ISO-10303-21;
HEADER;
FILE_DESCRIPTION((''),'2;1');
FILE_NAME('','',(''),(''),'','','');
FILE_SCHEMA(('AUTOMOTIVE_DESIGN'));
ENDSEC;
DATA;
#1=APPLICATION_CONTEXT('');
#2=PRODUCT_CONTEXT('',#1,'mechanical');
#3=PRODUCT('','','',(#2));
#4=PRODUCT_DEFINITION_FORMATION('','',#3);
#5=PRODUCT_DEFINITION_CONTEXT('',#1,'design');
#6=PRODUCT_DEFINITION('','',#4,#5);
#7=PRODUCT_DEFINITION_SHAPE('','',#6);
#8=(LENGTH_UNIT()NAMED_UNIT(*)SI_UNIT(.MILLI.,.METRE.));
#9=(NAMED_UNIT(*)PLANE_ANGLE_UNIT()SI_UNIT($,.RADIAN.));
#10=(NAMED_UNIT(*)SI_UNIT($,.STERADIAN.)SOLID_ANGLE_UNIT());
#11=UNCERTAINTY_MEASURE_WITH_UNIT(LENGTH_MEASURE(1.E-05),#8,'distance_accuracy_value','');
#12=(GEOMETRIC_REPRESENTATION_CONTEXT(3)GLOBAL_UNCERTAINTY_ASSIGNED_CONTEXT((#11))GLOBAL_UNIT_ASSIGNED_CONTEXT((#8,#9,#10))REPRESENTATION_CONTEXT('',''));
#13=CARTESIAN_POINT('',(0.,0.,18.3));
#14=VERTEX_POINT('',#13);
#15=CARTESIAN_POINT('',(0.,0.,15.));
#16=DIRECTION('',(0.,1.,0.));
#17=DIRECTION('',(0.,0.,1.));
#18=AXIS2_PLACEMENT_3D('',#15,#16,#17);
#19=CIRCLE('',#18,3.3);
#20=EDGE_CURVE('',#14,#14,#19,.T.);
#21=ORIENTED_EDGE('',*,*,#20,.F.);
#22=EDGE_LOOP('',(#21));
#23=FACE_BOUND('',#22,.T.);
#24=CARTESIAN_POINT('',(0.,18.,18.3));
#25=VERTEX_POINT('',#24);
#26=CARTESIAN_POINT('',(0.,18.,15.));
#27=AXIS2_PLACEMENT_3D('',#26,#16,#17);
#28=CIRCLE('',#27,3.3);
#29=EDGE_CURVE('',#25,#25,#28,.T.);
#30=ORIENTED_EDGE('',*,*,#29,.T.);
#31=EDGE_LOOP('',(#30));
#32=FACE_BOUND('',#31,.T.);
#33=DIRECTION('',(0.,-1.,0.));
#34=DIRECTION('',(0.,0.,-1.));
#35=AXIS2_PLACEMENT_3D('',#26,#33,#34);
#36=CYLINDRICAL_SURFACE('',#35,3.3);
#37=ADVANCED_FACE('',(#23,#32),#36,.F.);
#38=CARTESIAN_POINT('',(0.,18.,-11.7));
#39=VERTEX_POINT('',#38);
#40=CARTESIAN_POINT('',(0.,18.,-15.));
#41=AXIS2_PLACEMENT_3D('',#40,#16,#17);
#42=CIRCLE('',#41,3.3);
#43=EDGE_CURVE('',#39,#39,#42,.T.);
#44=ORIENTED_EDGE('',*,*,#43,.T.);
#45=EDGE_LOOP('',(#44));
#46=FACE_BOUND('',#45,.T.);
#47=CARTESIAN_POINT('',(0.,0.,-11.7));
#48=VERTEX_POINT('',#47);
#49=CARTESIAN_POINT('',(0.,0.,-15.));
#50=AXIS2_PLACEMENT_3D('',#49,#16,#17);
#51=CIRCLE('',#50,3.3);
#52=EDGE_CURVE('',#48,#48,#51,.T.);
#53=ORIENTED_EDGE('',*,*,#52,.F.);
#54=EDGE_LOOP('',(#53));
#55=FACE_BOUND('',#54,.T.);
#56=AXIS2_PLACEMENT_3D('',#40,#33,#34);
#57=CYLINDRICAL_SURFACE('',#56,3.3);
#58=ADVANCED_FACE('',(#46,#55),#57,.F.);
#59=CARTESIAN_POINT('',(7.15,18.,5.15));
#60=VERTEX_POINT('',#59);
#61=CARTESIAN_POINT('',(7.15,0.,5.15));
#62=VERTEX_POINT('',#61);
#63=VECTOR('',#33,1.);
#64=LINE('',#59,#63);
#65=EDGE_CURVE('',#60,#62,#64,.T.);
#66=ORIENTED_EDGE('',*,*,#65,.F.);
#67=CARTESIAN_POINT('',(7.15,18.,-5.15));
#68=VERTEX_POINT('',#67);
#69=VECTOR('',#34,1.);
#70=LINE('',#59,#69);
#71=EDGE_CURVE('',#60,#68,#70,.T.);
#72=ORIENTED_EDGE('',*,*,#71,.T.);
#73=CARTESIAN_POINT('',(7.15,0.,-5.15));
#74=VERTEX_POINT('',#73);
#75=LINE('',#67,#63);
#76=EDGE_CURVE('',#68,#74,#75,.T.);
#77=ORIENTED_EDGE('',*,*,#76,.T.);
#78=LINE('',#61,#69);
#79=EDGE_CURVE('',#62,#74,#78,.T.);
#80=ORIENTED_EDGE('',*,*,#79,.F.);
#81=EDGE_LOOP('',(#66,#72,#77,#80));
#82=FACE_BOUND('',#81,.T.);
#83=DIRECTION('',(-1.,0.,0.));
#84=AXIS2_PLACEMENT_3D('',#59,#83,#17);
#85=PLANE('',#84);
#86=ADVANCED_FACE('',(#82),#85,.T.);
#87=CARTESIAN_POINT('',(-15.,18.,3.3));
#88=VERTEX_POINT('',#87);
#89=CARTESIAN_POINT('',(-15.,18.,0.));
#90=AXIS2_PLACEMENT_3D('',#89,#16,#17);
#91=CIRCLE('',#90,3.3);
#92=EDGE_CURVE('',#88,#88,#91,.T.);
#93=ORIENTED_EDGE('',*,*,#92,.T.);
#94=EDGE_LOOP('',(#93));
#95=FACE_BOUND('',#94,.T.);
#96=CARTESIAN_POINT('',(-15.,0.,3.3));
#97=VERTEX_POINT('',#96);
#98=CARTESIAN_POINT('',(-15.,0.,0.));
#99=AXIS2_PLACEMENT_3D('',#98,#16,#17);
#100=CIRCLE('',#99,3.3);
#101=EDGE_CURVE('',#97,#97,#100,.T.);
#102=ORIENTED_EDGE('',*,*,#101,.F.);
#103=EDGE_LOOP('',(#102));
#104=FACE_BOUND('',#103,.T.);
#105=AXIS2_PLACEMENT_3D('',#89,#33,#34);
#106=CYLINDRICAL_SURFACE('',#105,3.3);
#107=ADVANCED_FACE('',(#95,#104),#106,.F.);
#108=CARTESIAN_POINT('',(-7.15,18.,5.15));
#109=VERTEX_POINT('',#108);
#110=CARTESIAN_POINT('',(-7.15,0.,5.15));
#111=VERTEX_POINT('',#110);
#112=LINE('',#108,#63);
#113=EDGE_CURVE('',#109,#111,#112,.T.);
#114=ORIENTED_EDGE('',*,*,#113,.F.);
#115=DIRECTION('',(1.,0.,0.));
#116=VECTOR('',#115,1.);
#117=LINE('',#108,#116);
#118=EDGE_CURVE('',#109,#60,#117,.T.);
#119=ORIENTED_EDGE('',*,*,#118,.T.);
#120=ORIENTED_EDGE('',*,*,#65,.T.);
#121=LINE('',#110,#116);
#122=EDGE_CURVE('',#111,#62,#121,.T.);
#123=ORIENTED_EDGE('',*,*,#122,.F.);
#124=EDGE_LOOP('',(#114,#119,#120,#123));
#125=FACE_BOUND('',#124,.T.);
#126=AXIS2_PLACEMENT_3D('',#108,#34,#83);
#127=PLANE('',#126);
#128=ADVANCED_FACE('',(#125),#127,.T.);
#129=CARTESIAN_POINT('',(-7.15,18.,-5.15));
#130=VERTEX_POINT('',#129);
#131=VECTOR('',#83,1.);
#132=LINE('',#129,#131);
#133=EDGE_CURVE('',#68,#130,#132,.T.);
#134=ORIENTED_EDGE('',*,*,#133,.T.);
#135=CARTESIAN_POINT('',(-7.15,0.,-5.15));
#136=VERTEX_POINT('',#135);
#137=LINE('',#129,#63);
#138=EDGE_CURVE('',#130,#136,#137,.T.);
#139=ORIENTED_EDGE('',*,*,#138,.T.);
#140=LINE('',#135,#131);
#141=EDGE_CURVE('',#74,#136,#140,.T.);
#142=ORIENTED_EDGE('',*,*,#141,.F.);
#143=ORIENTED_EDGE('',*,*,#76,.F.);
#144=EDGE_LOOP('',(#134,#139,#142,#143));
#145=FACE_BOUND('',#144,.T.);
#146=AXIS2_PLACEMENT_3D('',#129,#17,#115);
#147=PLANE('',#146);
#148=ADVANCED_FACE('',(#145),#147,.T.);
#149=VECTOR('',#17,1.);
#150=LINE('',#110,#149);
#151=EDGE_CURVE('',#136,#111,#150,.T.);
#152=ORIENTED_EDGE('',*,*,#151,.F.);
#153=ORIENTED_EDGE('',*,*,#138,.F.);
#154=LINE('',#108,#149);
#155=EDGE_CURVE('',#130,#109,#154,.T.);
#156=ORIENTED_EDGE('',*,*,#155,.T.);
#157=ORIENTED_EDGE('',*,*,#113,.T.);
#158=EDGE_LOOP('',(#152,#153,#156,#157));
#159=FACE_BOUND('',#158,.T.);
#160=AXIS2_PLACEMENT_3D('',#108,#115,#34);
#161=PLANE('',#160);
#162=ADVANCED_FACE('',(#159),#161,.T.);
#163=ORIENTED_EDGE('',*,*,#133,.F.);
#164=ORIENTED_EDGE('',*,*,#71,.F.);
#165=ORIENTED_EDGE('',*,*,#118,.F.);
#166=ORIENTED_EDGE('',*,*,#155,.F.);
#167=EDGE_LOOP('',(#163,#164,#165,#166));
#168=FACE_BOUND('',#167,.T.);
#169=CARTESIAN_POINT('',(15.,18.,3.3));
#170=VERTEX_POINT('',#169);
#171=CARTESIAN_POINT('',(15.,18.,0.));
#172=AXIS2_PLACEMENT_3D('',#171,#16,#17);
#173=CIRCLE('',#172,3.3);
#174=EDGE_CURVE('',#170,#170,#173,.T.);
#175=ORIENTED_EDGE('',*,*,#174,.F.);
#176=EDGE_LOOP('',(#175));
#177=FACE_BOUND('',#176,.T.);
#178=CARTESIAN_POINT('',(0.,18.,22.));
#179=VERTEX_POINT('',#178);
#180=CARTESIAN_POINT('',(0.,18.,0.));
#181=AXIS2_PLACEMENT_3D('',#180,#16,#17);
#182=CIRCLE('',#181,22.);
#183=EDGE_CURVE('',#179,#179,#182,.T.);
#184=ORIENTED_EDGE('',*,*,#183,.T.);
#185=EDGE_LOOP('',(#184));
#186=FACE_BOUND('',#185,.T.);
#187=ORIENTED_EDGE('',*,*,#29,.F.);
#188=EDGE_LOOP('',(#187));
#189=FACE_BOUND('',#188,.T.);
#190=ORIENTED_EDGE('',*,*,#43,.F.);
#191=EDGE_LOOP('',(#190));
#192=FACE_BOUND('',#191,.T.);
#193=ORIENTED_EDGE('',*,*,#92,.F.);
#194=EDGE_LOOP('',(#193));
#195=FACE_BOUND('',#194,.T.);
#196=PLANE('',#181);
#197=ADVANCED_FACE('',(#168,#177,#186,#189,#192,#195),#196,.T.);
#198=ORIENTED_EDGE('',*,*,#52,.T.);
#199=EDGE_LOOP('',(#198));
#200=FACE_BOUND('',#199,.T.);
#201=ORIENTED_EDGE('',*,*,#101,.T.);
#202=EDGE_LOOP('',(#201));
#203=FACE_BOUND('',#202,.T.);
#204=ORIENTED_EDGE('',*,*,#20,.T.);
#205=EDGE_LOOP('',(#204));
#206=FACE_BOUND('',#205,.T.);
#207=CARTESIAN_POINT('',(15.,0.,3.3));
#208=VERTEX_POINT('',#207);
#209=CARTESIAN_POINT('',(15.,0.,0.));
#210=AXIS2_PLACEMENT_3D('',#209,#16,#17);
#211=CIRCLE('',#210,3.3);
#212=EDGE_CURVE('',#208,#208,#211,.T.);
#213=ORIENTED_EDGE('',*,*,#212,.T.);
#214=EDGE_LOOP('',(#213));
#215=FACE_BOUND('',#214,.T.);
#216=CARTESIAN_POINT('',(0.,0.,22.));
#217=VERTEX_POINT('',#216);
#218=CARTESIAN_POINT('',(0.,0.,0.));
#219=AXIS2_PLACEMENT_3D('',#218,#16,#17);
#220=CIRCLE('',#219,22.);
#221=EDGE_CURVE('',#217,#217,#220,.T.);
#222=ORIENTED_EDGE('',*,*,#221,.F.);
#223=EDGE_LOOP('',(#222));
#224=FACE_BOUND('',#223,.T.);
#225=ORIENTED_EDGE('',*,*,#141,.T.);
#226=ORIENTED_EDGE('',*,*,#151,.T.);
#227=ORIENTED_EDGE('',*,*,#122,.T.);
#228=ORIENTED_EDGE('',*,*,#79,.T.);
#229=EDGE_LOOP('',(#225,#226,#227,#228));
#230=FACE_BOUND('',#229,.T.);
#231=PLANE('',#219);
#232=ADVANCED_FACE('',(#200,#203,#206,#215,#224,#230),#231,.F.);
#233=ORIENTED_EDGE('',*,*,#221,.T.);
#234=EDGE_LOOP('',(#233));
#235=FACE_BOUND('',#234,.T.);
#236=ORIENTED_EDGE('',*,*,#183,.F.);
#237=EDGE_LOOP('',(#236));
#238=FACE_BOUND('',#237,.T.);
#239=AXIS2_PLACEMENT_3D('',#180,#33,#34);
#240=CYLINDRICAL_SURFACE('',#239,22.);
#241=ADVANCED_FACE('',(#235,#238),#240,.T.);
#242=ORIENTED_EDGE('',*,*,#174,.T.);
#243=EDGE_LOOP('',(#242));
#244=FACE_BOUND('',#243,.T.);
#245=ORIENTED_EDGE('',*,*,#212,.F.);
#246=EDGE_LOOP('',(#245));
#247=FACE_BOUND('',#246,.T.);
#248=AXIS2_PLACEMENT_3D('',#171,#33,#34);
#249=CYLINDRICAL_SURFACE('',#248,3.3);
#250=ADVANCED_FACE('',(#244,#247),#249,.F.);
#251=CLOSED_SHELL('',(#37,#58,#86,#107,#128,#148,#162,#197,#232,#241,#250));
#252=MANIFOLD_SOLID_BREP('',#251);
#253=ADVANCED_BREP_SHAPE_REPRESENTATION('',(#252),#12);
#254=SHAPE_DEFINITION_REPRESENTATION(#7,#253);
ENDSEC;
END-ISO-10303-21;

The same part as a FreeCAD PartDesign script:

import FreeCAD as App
import Part
import Sketcher

V = App.Vector
Q = App.Units.Quantity


def add_polygon(sketch, points):
    """Adds a closed chain of lines whose ends are joined by coincident constraints."""
    first, n = sketch.GeometryCount, len(points)
    for a, b in zip(points, points[1:] + points[:1]):
        sketch.addGeometry(Part.LineSegment(App.Vector(*a, 0), App.Vector(*b, 0)), False)
    for i in range(n):
        sketch.addConstraint(Sketcher.Constraint("Coincident", first + i, 2, first + (i + 1) % n, 1))

doc = App.newDocument("Part")
body = doc.addObject("PartDesign::Body", "Body")

# Sketch on XZ plane
sketch1 = doc.addObject("Sketcher::SketchObject", "Sketch")
body.addObject(sketch1)
sketch1.AttachmentSupport = (doc.XZ_Plane, [""])
sketch1.MapMode = "FlatFace"
sketch1.addGeometry(Part.Circle(V(0, 0, 0), V(0, 0, 1), 22), False)  # 0
sketch1.addGeometry(Part.Circle(V(0, -15, 0), V(0, 0, 1), 3.3), False)  # 1
add_polygon(sketch1, [(7.2, 5.2), (-7.2, 5.2), (-7.2, -5.2), (7.2, -5.2)])  # lines 2-5
sketch1.addGeometry(Part.Circle(V(-15, 0, 0), V(0, 0, 1), 3.3), False)  # 6
sketch1.addGeometry(Part.Circle(V(15, 0, 0), V(0, 0, 1), 3.3), False)  # 7
sketch1.addGeometry(Part.Circle(V(0, 15, 0), V(0, 0, 1), 3.3), False)  # 8
sketch1.addConstraint(Sketcher.Constraint("Horizontal", 2))
sketch1.addConstraint(Sketcher.Constraint("Vertical", 3))
sketch1.addConstraint(Sketcher.Constraint("Horizontal", 4))
sketch1.addConstraint(Sketcher.Constraint("Vertical", 5))
sketch1.addConstraint(Sketcher.Constraint("Coincident", 0, 3, -1, 1))
sketch1.addConstraint(Sketcher.Constraint("Equal", 1, 6))
sketch1.addConstraint(Sketcher.Constraint("Equal", 6, 7))
sketch1.addConstraint(Sketcher.Constraint("Equal", 7, 8))
sketch1.addConstraint(Sketcher.Constraint("Symmetric", 6, 3, 7, 3, -1, 1))
sketch1.addConstraint(Sketcher.Constraint("Symmetric", 1, 3, 8, 3, -1, 1))
sketch1.addConstraint(Sketcher.Constraint("Symmetric", 2, 2, 4, 2, -1, 1))
sketch1.addConstraint(Sketcher.Constraint("PointOnObject", 1, 3, -2))
sketch1.addConstraint(Sketcher.Constraint("PointOnObject", 6, 3, -1))
sketch1.addConstraint(Sketcher.Constraint("Diameter", 0, Q("44 mm")))
sketch1.addConstraint(Sketcher.Constraint("Diameter", 1, Q("6.6 mm")))
sketch1.addConstraint(Sketcher.Constraint("DistanceX", 2, 2, 2, 1, Q("14.3 mm")))
sketch1.addConstraint(Sketcher.Constraint("DistanceY", 3, 2, 3, 1, Q("10.3 mm")))
sketch1.addConstraint(Sketcher.Constraint("DistanceY", 1, 3, -1, 1, Q("15 mm")))
sketch1.addConstraint(Sketcher.Constraint("DistanceX", 6, 3, -1, 1, Q("15 mm")))
pad1 = doc.addObject("PartDesign::Pad", "Pad")
body.addObject(pad1)
pad1.Profile = sketch1
pad1.Length = 18
pad1.Reversed = True

doc.recompute()
